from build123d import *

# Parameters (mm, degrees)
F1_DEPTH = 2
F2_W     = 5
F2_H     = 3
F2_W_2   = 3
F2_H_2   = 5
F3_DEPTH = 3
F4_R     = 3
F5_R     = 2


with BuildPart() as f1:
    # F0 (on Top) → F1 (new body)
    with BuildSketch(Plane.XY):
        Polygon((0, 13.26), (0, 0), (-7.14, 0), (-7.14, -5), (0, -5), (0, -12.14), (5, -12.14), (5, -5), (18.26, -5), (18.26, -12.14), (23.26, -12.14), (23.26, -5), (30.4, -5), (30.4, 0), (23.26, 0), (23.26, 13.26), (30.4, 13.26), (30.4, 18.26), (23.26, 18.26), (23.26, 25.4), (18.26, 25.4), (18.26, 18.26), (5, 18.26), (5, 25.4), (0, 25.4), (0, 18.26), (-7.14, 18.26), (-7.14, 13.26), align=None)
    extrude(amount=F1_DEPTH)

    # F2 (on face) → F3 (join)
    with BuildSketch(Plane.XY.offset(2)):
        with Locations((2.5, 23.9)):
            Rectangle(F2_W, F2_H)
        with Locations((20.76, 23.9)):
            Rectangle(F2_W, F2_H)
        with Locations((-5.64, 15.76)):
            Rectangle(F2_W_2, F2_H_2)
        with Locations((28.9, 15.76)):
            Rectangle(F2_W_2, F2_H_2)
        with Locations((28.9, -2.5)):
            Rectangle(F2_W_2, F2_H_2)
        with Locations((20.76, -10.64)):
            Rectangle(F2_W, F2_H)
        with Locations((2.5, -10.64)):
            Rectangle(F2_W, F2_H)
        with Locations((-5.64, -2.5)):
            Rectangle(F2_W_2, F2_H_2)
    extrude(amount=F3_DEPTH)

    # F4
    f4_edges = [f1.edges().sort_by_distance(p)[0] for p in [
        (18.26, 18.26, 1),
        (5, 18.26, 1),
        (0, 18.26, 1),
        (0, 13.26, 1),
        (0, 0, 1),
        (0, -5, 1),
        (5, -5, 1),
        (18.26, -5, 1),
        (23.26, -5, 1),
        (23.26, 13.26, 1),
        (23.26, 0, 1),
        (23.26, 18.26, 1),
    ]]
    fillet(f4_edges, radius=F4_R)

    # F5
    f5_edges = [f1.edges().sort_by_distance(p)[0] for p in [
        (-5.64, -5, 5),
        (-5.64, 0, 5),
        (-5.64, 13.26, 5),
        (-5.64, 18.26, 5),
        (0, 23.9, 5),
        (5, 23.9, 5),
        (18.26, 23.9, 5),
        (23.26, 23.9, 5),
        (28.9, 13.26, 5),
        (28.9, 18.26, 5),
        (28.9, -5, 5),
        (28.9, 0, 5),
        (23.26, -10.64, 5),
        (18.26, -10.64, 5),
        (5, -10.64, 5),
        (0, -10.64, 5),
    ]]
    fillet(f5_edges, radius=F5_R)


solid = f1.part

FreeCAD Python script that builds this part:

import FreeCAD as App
import Part
import Sketcher
from FreeCAD import Vector


def edges_at(feature, points):
    """Names of the edges that pass closest to the given points."""
    edges = feature.Shape.Edges
    near = lambda p: min(range(len(edges)), key=lambda i: edges[i].distToShape(Part.Vertex(*p))[0])
    return sorted({f"Edge{near(p) + 1}" for p in points})


def add_polygon(sketch, points):
    """Adds a closed chain of lines whose ends are joined by coincident constraints."""
    first, n = sketch.GeometryCount, len(points)
    for a, b in zip(points, points[1:] + points[:1]):
        sketch.addGeometry(Part.LineSegment(App.Vector(*a, 0), App.Vector(*b, 0)), False)
    for i in range(n):
        sketch.addConstraint(Sketcher.Constraint("Coincident", first + i, 2, first + (i + 1) % n, 1))

doc = App.newDocument("Part")
body = doc.addObject("PartDesign::Body", "Body")

# Sketch on XY plane
sketch1 = doc.addObject("Sketcher::SketchObject", "Sketch")
body.addObject(sketch1)
sketch1.AttachmentSupport = (doc.XY_Plane, [""])
sketch1.MapMode = "FlatFace"
add_polygon(sketch1, [(0, 13), (0, 0), (-7, 0), (-7, -5), (0, -5), (0, -12), (5, -12), (5, -5), (18, -5), (18, -12), (23, -12), (23, -5), (30, -5), (30, 0), (23, 0), (23, 13), (30, 13), (30, 18), (23, 18), (23, 25), (18, 25), (18, 18), (5, 18), (5, 25), (0, 25), (0, 18), (-7, 18), (-7, 13)])  # lines 0-27
sketch1.addConstraint([
    Sketcher.Constraint("Vertical", 0),
    Sketcher.Constraint("Horizontal", 1),
    Sketcher.Constraint("Vertical", 2),
    Sketcher.Constraint("Horizontal", 3),
    Sketcher.Constraint("Vertical", 4),
    Sketcher.Constraint("Horizontal", 5),
    Sketcher.Constraint("Vertical", 6),
    Sketcher.Constraint("Horizontal", 7),
    Sketcher.Constraint("Vertical", 8),
    Sketcher.Constraint("Horizontal", 9),
    Sketcher.Constraint("Vertical", 10),
    Sketcher.Constraint("Horizontal", 11),
    Sketcher.Constraint("Vertical", 12),
    Sketcher.Constraint("Horizontal", 13),
    Sketcher.Constraint("Vertical", 14),
    Sketcher.Constraint("Horizontal", 15),
    Sketcher.Constraint("Vertical", 16),
    Sketcher.Constraint("Horizontal", 17),
    Sketcher.Constraint("Vertical", 18),
    Sketcher.Constraint("Horizontal", 19),
    Sketcher.Constraint("Vertical", 20),
    Sketcher.Constraint("Horizontal", 21),
    Sketcher.Constraint("Vertical", 22),
    Sketcher.Constraint("Horizontal", 23),
    Sketcher.Constraint("Vertical", 24),
    Sketcher.Constraint("Horizontal", 25),
    Sketcher.Constraint("Vertical", 26),
    Sketcher.Constraint("Horizontal", 27),
    Sketcher.Constraint("Coincident", 0, 2, -1, 1),
    Sketcher.Constraint("PointOnObject", 3, 2, -2),
    Sketcher.Constraint("PointOnObject", 12, 2, -1),
    Sketcher.Constraint("PointOnObject", 23, 2, -2),
    Sketcher.Constraint("Horizontal", 3, 2, 6, 2),
    Sketcher.Constraint("Horizontal", 5, 2, 8, 2),
    Sketcher.Constraint("Horizontal", 7, 2, 10, 2),
    Sketcher.Constraint("Horizontal", 17, 2, 20, 2),
    Sketcher.Constraint("Horizontal", 19, 2, 22, 2),
    Sketcher.Constraint("Horizontal", 21, 2, 24, 2),
    Sketcher.Constraint("Horizontal", 15, 2, 26, 2),
    Sketcher.Constraint("Vertical", 10, 2, 13, 2),
    Sketcher.Constraint("Vertical", 12, 2, 15, 2),
    Sketcher.Constraint("Vertical", 14, 2, 17, 2),
    Sketcher.Constraint("Vertical", 8, 2, 19, 2),
    Sketcher.Constraint("Vertical", 6, 2, 21, 2),
    Sketcher.Constraint("Vertical", 2, 2, 25, 2),
    Sketcher.Constraint("Equal", 5, 9),
    Sketcher.Constraint("Equal", 3, 11),
    Sketcher.Constraint("Equal", 21, 0),
    Sketcher.Constraint("Equal", 23, 2),
    Sketcher.Constraint("Equal", 27, 4),
    Sketcher.Constraint("Equal", 12, 16),
    Sketcher.Constraint("Equal", 10, 18),
    Sketcher.Constraint("DistanceX", 5, 1, 5, 2, 5.0),
    Sketcher.Constraint("DistanceX", 1, 2, 1, 1, 7.14),
    Sketcher.Constraint("DistanceX", 7, 1, 7, 2, 13.26),
])
pad1 = doc.addObject("PartDesign::Pad", "Pad")
body.addObject(pad1)
pad1.Profile = sketch1
pad1.Length = 2

# Sketch on XY plane
sketch2 = doc.addObject("Sketcher::SketchObject", "Sketch001")
body.addObject(sketch2)
sketch2.AttachmentSupport = (doc.XY_Plane, [""])
sketch2.MapMode = "FlatFace"
sketch2.AttachmentOffset = App.Placement(Vector(0, 0, 2), App.Rotation())
add_polygon(sketch2, [(0, 25.4), (0, 22.4), (5, 22.4), (5, 25.4)])  # lines 0-3
add_polygon(sketch2, [(18.3, 25.4), (18.3, 22.4), (23.3, 22.4), (23.3, 25.4)])  # lines 4-7
add_polygon(sketch2, [(-7.1, 18.3), (-7.1, 13.3), (-4.1, 13.3), (-4.1, 18.3)])  # lines 8-11
add_polygon(sketch2, [(27.4, 18.3), (27.4, 13.3), (30.4, 13.3), (30.4, 18.3)])  # lines 12-15
add_polygon(sketch2, [(27.4, 0), (27.4, -5), (30.4, -5), (30.4, 0)])  # lines 16-19
add_polygon(sketch2, [(18.3, -9.1), (18.3, -12.1), (23.3, -12.1), (23.3, -9.1)])  # lines 20-23
add_polygon(sketch2, [(0, -9.1), (0, -12.1), (5, -12.1), (5, -9.1)])  # lines 24-27
add_polygon(sketch2, [(-7.1, 0), (-7.1, -5), (-4.1, -5), (-4.1, 0)])  # lines 28-31
sketch2.addConstraint([
    Sketcher.Constraint("Vertical", 0),
    Sketcher.Constraint("Horizontal", 1),
    Sketcher.Constraint("Vertical", 2),
    Sketcher.Constraint("Horizontal", 3),
    Sketcher.Constraint("Vertical", 4),
    Sketcher.Constraint("Horizontal", 5),
    Sketcher.Constraint("Vertical", 6),
    Sketcher.Constraint("Horizontal", 7),
    Sketcher.Constraint("Vertical", 8),
    Sketcher.Constraint("Horizontal", 9),
    Sketcher.Constraint("Vertical", 10),
    Sketcher.Constraint("Horizontal", 11),
    Sketcher.Constraint("Vertical", 12),
    Sketcher.Constraint("Horizontal", 13),
    Sketcher.Constraint("Vertical", 14),
    Sketcher.Constraint("Horizontal", 15),
    Sketcher.Constraint("Vertical", 16),
    Sketcher.Constraint("Horizontal", 17),
    Sketcher.Constraint("Vertical", 18),
    Sketcher.Constraint("Horizontal", 19),
    Sketcher.Constraint("Vertical", 20),
    Sketcher.Constraint("Horizontal", 21),
    Sketcher.Constraint("Vertical", 22),
    Sketcher.Constraint("Horizontal", 23),
    Sketcher.Constraint("Vertical", 24),
    Sketcher.Constraint("Horizontal", 25),
    Sketcher.Constraint("Vertical", 26),
    Sketcher.Constraint("Horizontal", 27),
    Sketcher.Constraint("Vertical", 28),
    Sketcher.Constraint("Horizontal", 29),
    Sketcher.Constraint("Vertical", 30),
    Sketcher.Constraint("Horizontal", 31),
    Sketcher.Constraint("PointOnObject", 0, 2, -2),
    Sketcher.Constraint("PointOnObject", 18, 2, -1),
    Sketcher.Constraint("PointOnObject", 24, 2, -2),
    Sketcher.Constraint("PointOnObject", 30, 2, -1),
    Sketcher.Constraint("Horizontal", 1, 2, 4, 2),
    Sketcher.Constraint("Horizontal", 3, 2, 6, 2),
    Sketcher.Constraint("Horizontal", 9, 2, 12, 2),
    Sketcher.Constraint("Horizontal", 11, 2, 14, 2),
    Sketcher.Constraint("Horizontal", 21, 2, 24, 2),
    Sketcher.Constraint("Horizontal", 23, 2, 26, 2),
    Sketcher.Constraint("Horizontal", 17, 2, 28, 2),
    Sketcher.Constraint("Vertical", 15, 2, 16, 2),
    Sketcher.Constraint("Vertical", 14, 2, 17, 2),
    Sketcher.Constraint("Vertical", 7, 2, 20, 2),
    Sketcher.Constraint("Vertical", 6, 2, 21, 2),
    Sketcher.Constraint("Vertical", 2, 2, 25, 2),
    Sketcher.Constraint("Vertical", 11, 2, 28, 2),
    Sketcher.Constraint("Vertical", 10, 2, 29, 2),
    Sketcher.Constraint("Equal", 3, 5),
    Sketcher.Constraint("Equal", 11, 13),
    Sketcher.Constraint("Equal", 31, 0),
    Sketcher.Constraint("Equal", 27, 8),
    Sketcher.Constraint("Equal", 14, 16),
    Sketcher.Constraint("Equal", 6, 20),
    Sketcher.Constraint("DistanceX", 1, 1, 1, 2, 5.0),
    Sketcher.Constraint("DistanceX", 9, 1, 9, 2, 3.0),
    Sketcher.Constraint("DistanceY", -1, 1, 0, 2, 22.4),
    Sketcher.Constraint("DistanceX", -1, 1, 12, 2, 27.4),
    Sketcher.Constraint("DistanceX", 8, 2, 4, 2, 25.4),
    Sketcher.Constraint("DistanceY", 20, 2, 12, 2, 25.4),
    Sketcher.Constraint("DistanceX", -1, 1, 4, 2, 18.26),
    Sketcher.Constraint("DistanceY", -1, 1, 8, 2, 13.26),
])
pad2 = doc.addObject("PartDesign::Pad", "Pad001")
body.addObject(pad2)
pad2.Profile = sketch2
pad2.Length = 3
doc.recompute()

fillet = doc.addObject("PartDesign::Fillet", "Fillet")
body.addObject(fillet)
fillet.Base = (pad2, edges_at(pad2, [
    (18.26, 18.26, 1),
    (5, 18.26, 1),
    (0, 18.26, 1),
    (0, 13.26, 1),
    (0, 0, 1),
    (0, -5, 1),
    (5, -5, 1),
    (18.26, -5, 1),
    (23.26, -5, 1),
    (23.26, 13.26, 1),
    (23.26, 0, 1),
    (23.26, 18.26, 1),
]))
fillet.Radius = 3
doc.recompute()

fillet2 = doc.addObject("PartDesign::Fillet", "Fillet001")
body.addObject(fillet2)
fillet2.Base = (fillet, edges_at(fillet, [
    (-5.64, -5, 5),
    (-5.64, 0, 5),
    (-5.64, 13.26, 5),
    (-5.64, 18.26, 5),
    (0, 23.9, 5),
    (5, 23.9, 5),
    (18.26, 23.9, 5),
    (23.26, 23.9, 5),
    (28.9, 13.26, 5),
    (28.9, 18.26, 5),
    (28.9, -5, 5),
    (28.9, 0, 5),
    (23.26, -10.64, 5),
    (18.26, -10.64, 5),
    (5, -10.64, 5),
    (0, -10.64, 5),
]))
fillet2.Radius = 2

doc.recompute()
